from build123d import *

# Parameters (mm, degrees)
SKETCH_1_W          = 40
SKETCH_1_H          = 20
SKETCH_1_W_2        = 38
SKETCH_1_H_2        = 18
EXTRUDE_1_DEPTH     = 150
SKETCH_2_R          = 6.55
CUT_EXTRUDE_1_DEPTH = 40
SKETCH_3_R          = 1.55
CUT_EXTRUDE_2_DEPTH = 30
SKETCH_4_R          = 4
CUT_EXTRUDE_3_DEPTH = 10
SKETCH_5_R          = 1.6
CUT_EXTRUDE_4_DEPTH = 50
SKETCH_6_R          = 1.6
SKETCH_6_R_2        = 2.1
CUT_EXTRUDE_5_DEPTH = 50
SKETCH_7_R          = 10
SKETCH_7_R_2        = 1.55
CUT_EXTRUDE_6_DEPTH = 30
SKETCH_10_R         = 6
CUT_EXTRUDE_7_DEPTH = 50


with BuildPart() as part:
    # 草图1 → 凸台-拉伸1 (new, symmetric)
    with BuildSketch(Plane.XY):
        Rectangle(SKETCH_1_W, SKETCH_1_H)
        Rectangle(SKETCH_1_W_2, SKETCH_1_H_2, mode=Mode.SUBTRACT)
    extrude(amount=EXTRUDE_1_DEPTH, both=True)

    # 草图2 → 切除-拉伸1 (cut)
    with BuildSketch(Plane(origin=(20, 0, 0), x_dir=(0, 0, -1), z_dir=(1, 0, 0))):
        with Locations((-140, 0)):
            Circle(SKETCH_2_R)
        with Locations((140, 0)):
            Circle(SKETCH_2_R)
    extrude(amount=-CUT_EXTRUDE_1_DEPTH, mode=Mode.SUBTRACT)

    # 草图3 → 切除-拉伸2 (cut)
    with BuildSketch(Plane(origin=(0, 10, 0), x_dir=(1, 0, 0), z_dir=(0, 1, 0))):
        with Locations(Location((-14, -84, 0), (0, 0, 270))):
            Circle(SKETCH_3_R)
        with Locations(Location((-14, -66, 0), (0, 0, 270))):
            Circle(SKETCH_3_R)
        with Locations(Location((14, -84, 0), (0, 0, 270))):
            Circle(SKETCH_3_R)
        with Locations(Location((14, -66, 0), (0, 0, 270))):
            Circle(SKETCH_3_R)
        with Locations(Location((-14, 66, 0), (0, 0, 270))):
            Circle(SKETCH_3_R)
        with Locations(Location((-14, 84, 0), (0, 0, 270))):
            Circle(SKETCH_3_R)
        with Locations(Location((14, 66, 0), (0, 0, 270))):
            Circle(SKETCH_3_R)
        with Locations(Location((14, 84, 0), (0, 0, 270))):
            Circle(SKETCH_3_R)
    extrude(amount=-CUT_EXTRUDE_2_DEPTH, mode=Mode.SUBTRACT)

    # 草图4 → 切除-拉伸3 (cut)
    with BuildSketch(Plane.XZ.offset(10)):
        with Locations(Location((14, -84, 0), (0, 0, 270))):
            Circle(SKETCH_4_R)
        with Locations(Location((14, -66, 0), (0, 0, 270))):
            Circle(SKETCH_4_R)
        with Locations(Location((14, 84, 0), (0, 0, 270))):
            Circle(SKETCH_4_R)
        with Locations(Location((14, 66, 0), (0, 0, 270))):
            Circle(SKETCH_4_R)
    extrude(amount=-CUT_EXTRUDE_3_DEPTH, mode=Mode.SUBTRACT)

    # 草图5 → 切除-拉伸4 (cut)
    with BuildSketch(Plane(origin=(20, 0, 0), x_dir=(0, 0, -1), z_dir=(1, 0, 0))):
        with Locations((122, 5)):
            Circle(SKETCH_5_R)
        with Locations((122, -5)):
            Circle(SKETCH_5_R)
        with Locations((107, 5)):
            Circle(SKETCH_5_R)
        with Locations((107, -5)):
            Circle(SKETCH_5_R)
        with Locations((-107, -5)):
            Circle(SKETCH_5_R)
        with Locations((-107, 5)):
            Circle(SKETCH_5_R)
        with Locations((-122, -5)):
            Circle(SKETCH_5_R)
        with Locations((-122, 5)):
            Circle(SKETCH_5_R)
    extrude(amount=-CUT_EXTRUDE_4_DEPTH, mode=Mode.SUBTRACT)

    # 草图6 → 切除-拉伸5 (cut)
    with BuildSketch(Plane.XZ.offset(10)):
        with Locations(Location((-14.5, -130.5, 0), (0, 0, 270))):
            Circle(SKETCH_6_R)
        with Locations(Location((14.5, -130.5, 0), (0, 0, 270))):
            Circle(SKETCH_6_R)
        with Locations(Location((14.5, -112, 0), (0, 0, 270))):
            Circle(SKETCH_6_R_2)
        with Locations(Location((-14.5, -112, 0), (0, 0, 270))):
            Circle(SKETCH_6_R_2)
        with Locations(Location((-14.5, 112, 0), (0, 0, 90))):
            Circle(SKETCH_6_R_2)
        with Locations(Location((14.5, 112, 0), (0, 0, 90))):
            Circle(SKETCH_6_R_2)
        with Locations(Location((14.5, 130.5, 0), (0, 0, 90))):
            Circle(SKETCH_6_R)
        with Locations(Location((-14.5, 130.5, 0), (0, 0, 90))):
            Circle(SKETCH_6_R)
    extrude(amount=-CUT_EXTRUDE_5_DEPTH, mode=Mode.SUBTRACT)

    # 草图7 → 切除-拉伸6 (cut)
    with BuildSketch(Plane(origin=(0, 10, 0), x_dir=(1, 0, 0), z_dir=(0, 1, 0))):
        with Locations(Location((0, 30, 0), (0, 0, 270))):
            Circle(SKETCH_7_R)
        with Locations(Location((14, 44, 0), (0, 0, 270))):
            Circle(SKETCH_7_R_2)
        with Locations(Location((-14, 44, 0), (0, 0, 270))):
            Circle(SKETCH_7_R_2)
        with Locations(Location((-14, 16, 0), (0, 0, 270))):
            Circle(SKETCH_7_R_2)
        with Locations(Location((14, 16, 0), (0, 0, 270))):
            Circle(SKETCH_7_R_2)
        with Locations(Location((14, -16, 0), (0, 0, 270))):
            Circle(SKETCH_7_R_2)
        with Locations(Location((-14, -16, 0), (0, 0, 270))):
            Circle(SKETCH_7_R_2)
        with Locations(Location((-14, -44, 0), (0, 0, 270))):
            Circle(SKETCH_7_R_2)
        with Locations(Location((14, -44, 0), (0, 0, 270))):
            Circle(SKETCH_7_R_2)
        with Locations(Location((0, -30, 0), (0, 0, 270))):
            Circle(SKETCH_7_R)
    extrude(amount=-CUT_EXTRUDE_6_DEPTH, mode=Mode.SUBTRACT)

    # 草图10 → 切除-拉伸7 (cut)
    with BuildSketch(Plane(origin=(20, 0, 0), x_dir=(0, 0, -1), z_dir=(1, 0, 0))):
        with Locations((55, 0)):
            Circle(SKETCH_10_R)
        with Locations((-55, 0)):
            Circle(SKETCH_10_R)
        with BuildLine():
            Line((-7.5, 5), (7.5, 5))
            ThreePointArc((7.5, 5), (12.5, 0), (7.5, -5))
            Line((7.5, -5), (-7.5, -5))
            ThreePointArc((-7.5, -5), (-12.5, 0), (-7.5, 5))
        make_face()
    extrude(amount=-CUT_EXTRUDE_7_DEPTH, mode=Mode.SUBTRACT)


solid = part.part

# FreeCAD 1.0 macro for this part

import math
import FreeCAD as App
import Part
import Sketcher
from FreeCAD import Vector
Q = App.Units.Quantity

doc = App.newDocument("Part")
body = doc.addObject("PartDesign::Body", "Body")

# Sketch on XY plane
sketch1 = body.newObject("Sketcher::SketchObject", "Sketch")
sketch1.AttachmentSupport = (doc.getObject("XY_Plane"), [""])
sketch1.MapMode = "FlatFace"
sketch1.addGeometry([
    Part.LineSegment(Vector(-20, 10, 0), Vector(-20, -10, 0)),  # 0
    Part.LineSegment(Vector(-20, -10, 0), Vector(20, -10, 0)),  # 1
    Part.LineSegment(Vector(20, -10, 0), Vector(20, 10, 0)),  # 2
    Part.LineSegment(Vector(20, 10, 0), Vector(-20, 10, 0)),  # 3
    Part.LineSegment(Vector(19, -9, 0), Vector(-19, -9, 0)),  # 4
    Part.LineSegment(Vector(-19, -9, 0), Vector(-19, 9, 0)),  # 5
    Part.LineSegment(Vector(-19, 9, 0), Vector(19, 9, 0)),  # 6
    Part.LineSegment(Vector(19, 9, 0), Vector(19, -9, 0)),  # 7
], False)
sketch1.addConstraint([
    Sketcher.Constraint("Coincident", 0, 2, 1, 1),
    Sketcher.Constraint("Coincident", 1, 2, 2, 1),
    Sketcher.Constraint("Coincident", 2, 2, 3, 1),
    Sketcher.Constraint("Coincident", 3, 2, 0, 1),
    Sketcher.Constraint("Coincident", 4, 2, 5, 1),
    Sketcher.Constraint("Coincident", 5, 2, 6, 1),
    Sketcher.Constraint("Coincident", 6, 2, 7, 1),
    Sketcher.Constraint("Coincident", 7, 2, 4, 1),
    Sketcher.Constraint("Vertical", 0),
    Sketcher.Constraint("Horizontal", 1),
    Sketcher.Constraint("Vertical", 2),
    Sketcher.Constraint("Horizontal", 3),
    Sketcher.Constraint("Horizontal", 4),
    Sketcher.Constraint("Vertical", 5),
    Sketcher.Constraint("Horizontal", 6),
    Sketcher.Constraint("Vertical", 7),
    Sketcher.Constraint("Symmetric", 0, 2, 2, 2, -1, 1),
    Sketcher.Constraint("Symmetric", 4, 2, 6, 2, -1, 1),
    Sketcher.Constraint("DistanceX", 1, 1, 1, 2, Q("40 mm")),
    Sketcher.Constraint("DistanceX", 4, 2, 4, 1, Q("38 mm")),
    Sketcher.Constraint("DistanceY", 0, 2, 0, 1, Q("20 mm")),
    Sketcher.Constraint("DistanceY", 5, 1, 5, 2, Q("18 mm")),
])
pad1 = body.newObject("PartDesign::Pad", "Pad")
pad1.Profile = sketch1
pad1.Length = 300
pad1.Midplane = True

# Sketch on YZ plane
sketch2 = body.newObject("Sketcher::SketchObject", "Sketch001")
sketch2.AttachmentSupport = (doc.getObject("YZ_Plane"), [""])
sketch2.MapMode = "FlatFace"
sketch2.AttachmentOffset = App.Placement(Vector(0, 0, 20), App.Rotation())
sketch2.addGeometry([
    Part.Circle(Vector(0, 140, 0), Vector(0, 0, 1), 6.55),
    Part.Circle(Vector(0, -140, 0), Vector(0, 0, 1), 6.55),
], False)
sketch2.addConstraint([
    Sketcher.Constraint("Equal", 0, 1),
    Sketcher.Constraint("Symmetric", 0, 3, 1, 3, -1, 1),
    Sketcher.Constraint("PointOnObject", 0, 3, -2),
    Sketcher.Constraint("Diameter", 0, Q("13.1 mm")),
    Sketcher.Constraint("DistanceY", -1, 1, 0, 3, Q("140 mm")),
])
pocket1 = body.newObject("PartDesign::Pocket", "Pocket")
pocket1.Profile = sketch2
pocket1.Length = 40

# Sketch on XZ plane
sketch3 = body.newObject("Sketcher::SketchObject", "Sketch002")
sketch3.AttachmentSupport = (doc.getObject("XZ_Plane"), [""])
sketch3.MapMode = "FlatFace"
sketch3.AttachmentOffset = App.Placement(Vector(0, 0, -10), App.Rotation())
sketch3.addGeometry([
    Part.Circle(Vector(-14, 84, 0), Vector(0, 0, 1), 1.55),  # 0
    Part.Circle(Vector(-14, 66, 0), Vector(0, 0, 1), 1.55),  # 1
    Part.Circle(Vector(14, 84, 0), Vector(0, 0, 1), 1.55),  # 2
    Part.Circle(Vector(14, 66, 0), Vector(0, 0, 1), 1.55),  # 3
    Part.Circle(Vector(-14, -66, 0), Vector(0, 0, 1), 1.55),  # 4
    Part.Circle(Vector(-14, -84, 0), Vector(0, 0, 1), 1.55),  # 5
    Part.Circle(Vector(14, -66, 0), Vector(0, 0, 1), 1.55),  # 6
    Part.Circle(Vector(14, -84, 0), Vector(0, 0, 1), 1.55),  # 7
], False)
sketch3.addConstraint([
    Sketcher.Constraint("Equal", 0, 1),
    Sketcher.Constraint("Equal", 1, 2),
    Sketcher.Constraint("Equal", 2, 3),
    Sketcher.Constraint("Equal", 3, 4),
    Sketcher.Constraint("Equal", 4, 5),
    Sketcher.Constraint("Equal", 5, 6),
    Sketcher.Constraint("Equal", 6, 7),
    Sketcher.Constraint("Symmetric", 3, 3, 4, 3, -1, 1),
    Sketcher.Constraint("Symmetric", 2, 3, 5, 3, -1, 1),
    Sketcher.Constraint("Symmetric", 1, 3, 6, 3, -1, 1),
    Sketcher.Constraint("Symmetric", 0, 3, 7, 3, -1, 1),
    Sketcher.Constraint("Symmetric", 0, 3, 2, 3, -2),
    Sketcher.Constraint("Symmetric", 1, 3, 3, 3, -2),
    Sketcher.Constraint("Vertical", 0, 3, 1, 3),
    Sketcher.Constraint("Diameter", 0, Q("3.1 mm")),
    Sketcher.Constraint("DistanceX", 0, 3, -1, 1, Q("14 mm")),
    Sketcher.Constraint("DistanceY", -1, 1, 0, 3, Q("84 mm")),
    Sketcher.Constraint("DistanceY", -1, 1, 1, 3, Q("66 mm")),
])
pocket2 = body.newObject("PartDesign::Pocket", "Pocket001")
pocket2.Profile = sketch3
pocket2.Length = 30
pocket2.Reversed = True

# Sketch on XZ plane
sketch4 = body.newObject("Sketcher::SketchObject", "Sketch003")
sketch4.AttachmentSupport = (doc.getObject("XZ_Plane"), [""])
sketch4.MapMode = "FlatFace"
sketch4.AttachmentOffset = App.Placement(Vector(0, 0, 10), App.Rotation())
sketch4.addGeometry([
    Part.Circle(Vector(14, -84, 0), Vector(0, 0, 1), 4),
    Part.Circle(Vector(14, -66, 0), Vector(0, 0, 1), 4),
    Part.Circle(Vector(14, 84, 0), Vector(0, 0, 1), 4),
    Part.Circle(Vector(14, 66, 0), Vector(0, 0, 1), 4),
], False)
sketch4.addConstraint([
    Sketcher.Constraint("Equal", 0, 1),
    Sketcher.Constraint("Equal", 1, 2),
    Sketcher.Constraint("Equal", 2, 3),
    Sketcher.Constraint("Symmetric", 0, 3, 2, 3, -1),
    Sketcher.Constraint("Symmetric", 1, 3, 3, 3, -1),
    Sketcher.Constraint("Vertical", 0, 3, 1, 3),
    Sketcher.Constraint("Diameter", 0, Q("8 mm")),
    Sketcher.Constraint("DistanceX", -1, 1, 0, 3, Q("14 mm")),
    Sketcher.Constraint("DistanceY", 0, 3, -1, 1, Q("84 mm")),
    Sketcher.Constraint("DistanceY", 1, 3, -1, 1, Q("66 mm")),
])
pocket3 = body.newObject("PartDesign::Pocket", "Pocket002")
pocket3.Profile = sketch4
pocket3.Length = 10

# Sketch on YZ plane
sketch5 = body.newObject("Sketcher::SketchObject", "Sketch004")
sketch5.AttachmentSupport = (doc.getObject("YZ_Plane"), [""])
sketch5.MapMode = "FlatFace"
sketch5.AttachmentOffset = App.Placement(Vector(0, 0, 20), App.Rotation())
sketch5.addGeometry([
    Part.Circle(Vector(5, -122, 0), Vector(0, 0, 1), 1.6),  # 0
    Part.Circle(Vector(-5, -122, 0), Vector(0, 0, 1), 1.6),  # 1
    Part.Circle(Vector(5, -107, 0), Vector(0, 0, 1), 1.6),  # 2
    Part.Circle(Vector(-5, -107, 0), Vector(0, 0, 1), 1.6),  # 3
    Part.Circle(Vector(-5, 107, 0), Vector(0, 0, 1), 1.6),  # 4
    Part.Circle(Vector(5, 107, 0), Vector(0, 0, 1), 1.6),  # 5
    Part.Circle(Vector(-5, 122, 0), Vector(0, 0, 1), 1.6),  # 6
    Part.Circle(Vector(5, 122, 0), Vector(0, 0, 1), 1.6),  # 7
], False)
sketch5.addConstraint([
    Sketcher.Constraint("Equal", 0, 1),
    Sketcher.Constraint("Equal", 1, 2),
    Sketcher.Constraint("Equal", 2, 3),
    Sketcher.Constraint("Equal", 3, 4),
    Sketcher.Constraint("Equal", 4, 5),
    Sketcher.Constraint("Equal", 5, 6),
    Sketcher.Constraint("Equal", 6, 7),
    Sketcher.Constraint("Symmetric", 2, 3, 4, 3, -1, 1),
    Sketcher.Constraint("Symmetric", 3, 3, 5, 3, -1, 1),
    Sketcher.Constraint("Symmetric", 0, 3, 6, 3, -1, 1),
    Sketcher.Constraint("Symmetric", 1, 3, 7, 3, -1, 1),
    Sketcher.Constraint("Symmetric", 0, 3, 1, 3, -2),
    Sketcher.Constraint("Symmetric", 2, 3, 3, 3, -2),
    Sketcher.Constraint("Vertical", 0, 3, 2, 3),
    Sketcher.Constraint("Diameter", 0, Q("3.2 mm")),
    Sketcher.Constraint("DistanceX", -1, 1, 0, 3, Q("5 mm")),
    Sketcher.Constraint("DistanceY", 0, 3, -1, 1, Q("122 mm")),
    Sketcher.Constraint("DistanceY", 2, 3, -1, 1, Q("107 mm")),
])
pocket4 = body.newObject("PartDesign::Pocket", "Pocket003")
pocket4.Profile = sketch5
pocket4.Length = 50

# Sketch on XZ plane
sketch6 = body.newObject("Sketcher::SketchObject", "Sketch005")
sketch6.AttachmentSupport = (doc.getObject("XZ_Plane"), [""])
sketch6.MapMode = "FlatFace"
sketch6.AttachmentOffset = App.Placement(Vector(0, 0, 10), App.Rotation())
sketch6.addGeometry([
    Part.Circle(Vector(-14.5, -130.5, 0), Vector(0, 0, 1), 1.6),  # 0
    Part.Circle(Vector(14.5, -130.5, 0), Vector(0, 0, 1), 1.6),  # 1
    Part.Circle(Vector(14.5, -112, 0), Vector(0, 0, 1), 2.1),  # 2
    Part.Circle(Vector(-14.5, -112, 0), Vector(0, 0, 1), 2.1),  # 3
    Part.Circle(Vector(-14.5, 112, 0), Vector(0, 0, 1), 2.1),  # 4
    Part.Circle(Vector(14.5, 112, 0), Vector(0, 0, 1), 2.1),  # 5
    Part.Circle(Vector(14.5, 130.5, 0), Vector(0, 0, 1), 1.6),  # 6
    Part.Circle(Vector(-14.5, 130.5, 0), Vector(0, 0, 1), 1.6),  # 7
], False)
sketch6.addConstraint([
    Sketcher.Constraint("Equal", 0, 1),
    Sketcher.Constraint("Equal", 2, 3),
    Sketcher.Constraint("Equal", 3, 4),
    Sketcher.Constraint("Equal", 4, 5),
    Sketcher.Constraint("Equal", 1, 6),
    Sketcher.Constraint("Equal", 6, 7),
    Sketcher.Constraint("Symmetric", 2, 3, 4, 3, -1, 1),
    Sketcher.Constraint("Symmetric", 3, 3, 5, 3, -1, 1),
    Sketcher.Constraint("Symmetric", 0, 3, 6, 3, -1, 1),
    Sketcher.Constraint("Symmetric", 1, 3, 7, 3, -1, 1),
    Sketcher.Constraint("Symmetric", 0, 3, 1, 3, -2),
    Sketcher.Constraint("Symmetric", 2, 3, 3, 3, -2),
    Sketcher.Constraint("Vertical", 1, 3, 2, 3),
    Sketcher.Constraint("Diameter", 0, Q("3.2 mm")),
    Sketcher.Constraint("Diameter", 2, Q("4.2 mm")),
    Sketcher.Constraint("DistanceY", 2, 3, -1, 1, Q("112 mm")),
    Sketcher.Constraint("DistanceX", 0, 3, 1, 3, Q("29 mm")),
    Sketcher.Constraint("DistanceY", 1, 3, 6, 3, Q("261 mm")),
])
pocket5 = body.newObject("PartDesign::Pocket", "Pocket004")
pocket5.Profile = sketch6
pocket5.Length = 50

# Sketch on XZ plane
sketch7 = body.newObject("Sketcher::SketchObject", "Sketch006")
sketch7.AttachmentSupport = (doc.getObject("XZ_Plane"), [""])
sketch7.MapMode = "FlatFace"
sketch7.AttachmentOffset = App.Placement(Vector(0, 0, -10), App.Rotation())
sketch7.addGeometry([
    Part.Circle(Vector(0, -30, 0), Vector(0, 0, 1), 10),  # 0
    Part.Circle(Vector(14, -44, 0), Vector(0, 0, 1), 1.55),  # 1
    Part.Circle(Vector(-14, -44, 0), Vector(0, 0, 1), 1.55),  # 2
    Part.Circle(Vector(-14, -16, 0), Vector(0, 0, 1), 1.55),  # 3
    Part.Circle(Vector(14, -16, 0), Vector(0, 0, 1), 1.55),  # 4
    Part.Circle(Vector(14, 16, 0), Vector(0, 0, 1), 1.55),  # 5
    Part.Circle(Vector(-14, 16, 0), Vector(0, 0, 1), 1.55),  # 6
    Part.Circle(Vector(-14, 44, 0), Vector(0, 0, 1), 1.55),  # 7
    Part.Circle(Vector(14, 44, 0), Vector(0, 0, 1), 1.55),  # 8
    Part.Circle(Vector(0, 30, 0), Vector(0, 0, 1), 10),  # 9
], False)
sketch7.addConstraint([
    Sketcher.Constraint("Equal", 1, 2),
    Sketcher.Constraint("Equal", 2, 3),
    Sketcher.Constraint("Equal", 3, 4),
    Sketcher.Constraint("Equal", 4, 5),
    Sketcher.Constraint("Equal", 5, 6),
    Sketcher.Constraint("Equal", 6, 7),
    Sketcher.Constraint("Equal", 7, 8),
    Sketcher.Constraint("Equal", 0, 9),
    Sketcher.Constraint("Symmetric", 3, 3, 5, 3, -1, 1),
    Sketcher.Constraint("Symmetric", 4, 3, 6, 3, -1, 1),
    Sketcher.Constraint("Symmetric", 1, 3, 7, 3, -1, 1),
    Sketcher.Constraint("Symmetric", 2, 3, 8, 3, -1, 1),
    Sketcher.Constraint("Symmetric", 0, 3, 9, 3, -1, 1),
    Sketcher.Constraint("Symmetric", 1, 3, 2, 3, -2),
    Sketcher.Constraint("Symmetric", 3, 3, 4, 3, -2),
    Sketcher.Constraint("PointOnObject", 0, 3, -2),
    Sketcher.Constraint("Vertical", 2, 3, 3, 3),
    Sketcher.Constraint("Diameter", 0, Q("20 mm")),
    Sketcher.Constraint("Diameter", 1, Q("3.1 mm")),
    Sketcher.Constraint("DistanceY", 0, 3, -1, 1, Q("30 mm")),
    Sketcher.Constraint("DistanceX", -1, 1, 1, 3, Q("14 mm")),
    Sketcher.Constraint("DistanceY", 1, 3, -1, 1, Q("44 mm")),
    Sketcher.Constraint("DistanceY", 3, 3, -1, 1, Q("16 mm")),
])
pocket6 = body.newObject("PartDesign::Pocket", "Pocket005")
pocket6.Profile = sketch7
pocket6.Length = 30
pocket6.Reversed = True

# Sketch on YZ plane
sketch8 = body.newObject("Sketcher::SketchObject", "Sketch007")
sketch8.AttachmentSupport = (doc.getObject("YZ_Plane"), [""])
sketch8.MapMode = "FlatFace"
sketch8.AttachmentOffset = App.Placement(Vector(0, 0, 20), App.Rotation())
sketch8.addGeometry([
    Part.Circle(Vector(0, -55, 0), Vector(0, 0, 1), 6),  # 0
    Part.Circle(Vector(0, 55, 0), Vector(0, 0, 1), 6),  # 1
    Part.LineSegment(Vector(5, -7.5, 0), Vector(5, 7.5, 0)),  # 2
    Part.ArcOfCircle(Part.Circle(Vector(0, 7.5, 0), Vector(0, 0, 1), 5), math.radians(0), math.radians(180)),  # 3
    Part.LineSegment(Vector(-5, 7.5, 0), Vector(-5, -7.5, 0)),  # 4
    Part.ArcOfCircle(Part.Circle(Vector(0, -7.5, 0), Vector(0, 0, 1), 5), math.radians(180), math.radians(360)),  # 5
], False)
sketch8.addConstraint([
    Sketcher.Constraint("Tangent", 2, 2, 3, 1),
    Sketcher.Constraint("Tangent", 3, 2, 4, 1),
    Sketcher.Constraint("Tangent", 4, 2, 5, 1),
    Sketcher.Constraint("Tangent", 5, 2, 2, 1),
    Sketcher.Constraint("Vertical", 2),
    Sketcher.Constraint("Vertical", 4),
    Sketcher.Constraint("Equal", 0, 1),
    Sketcher.Constraint("Symmetric", 0, 3, 1, 3, -1, 1),
    Sketcher.Constraint("Symmetric", 3, 3, 5, 3, -1, 1),
    Sketcher.Constraint("PointOnObject", 0, 3, -2),
    Sketcher.Constraint("Diameter", 0, Q("12 mm")),
    Sketcher.Constraint("Radius", 3, Q("5 mm")),
    Sketcher.Constraint("DistanceY", 2, 1, 2, 2, Q("15 mm")),
    Sketcher.Constraint("DistanceY", 0, 3, -1, 1, Q("55 mm")),
])
pocket7 = body.newObject("PartDesign::Pocket", "Pocket006")
pocket7.Profile = sketch8
pocket7.Length = 50

doc.recompute()
